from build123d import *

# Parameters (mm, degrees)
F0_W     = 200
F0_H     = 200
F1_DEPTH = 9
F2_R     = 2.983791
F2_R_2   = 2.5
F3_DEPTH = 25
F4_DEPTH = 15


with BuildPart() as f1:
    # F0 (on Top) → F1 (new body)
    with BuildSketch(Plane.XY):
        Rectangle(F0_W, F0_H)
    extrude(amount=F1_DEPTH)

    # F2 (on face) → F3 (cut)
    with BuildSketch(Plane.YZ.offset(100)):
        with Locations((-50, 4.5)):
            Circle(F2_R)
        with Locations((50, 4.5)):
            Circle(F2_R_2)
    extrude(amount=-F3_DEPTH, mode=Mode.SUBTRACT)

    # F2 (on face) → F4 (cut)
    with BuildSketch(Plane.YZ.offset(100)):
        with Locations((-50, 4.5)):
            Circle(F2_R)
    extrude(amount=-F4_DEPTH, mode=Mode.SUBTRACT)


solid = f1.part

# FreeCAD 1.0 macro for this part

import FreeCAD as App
import Part
import Sketcher

V = App.Vector
Q = App.Units.Quantity

doc = App.newDocument("Part")
body = doc.addObject("PartDesign::Body", "Body")

# Sketch on XY plane
sketch1 = body.newObject("Sketcher::SketchObject", "Sketch")
sketch1.AttachmentSupport = (doc.getObject("XY_Plane"), [""])
sketch1.MapMode = "FlatFace"
sketch1.addGeometry([
    Part.LineSegment(V(-100, 100, 0), V(-100, -100, 0)),
    Part.LineSegment(V(-100, -100, 0), V(100, -100, 0)),
    Part.LineSegment(V(100, -100, 0), V(100, 100, 0)),
    Part.LineSegment(V(100, 100, 0), V(-100, 100, 0)),
], False)
sketch1.addConstraint([
    Sketcher.Constraint("Coincident", 0, 2, 1, 1),
    Sketcher.Constraint("Coincident", 1, 2, 2, 1),
    Sketcher.Constraint("Coincident", 2, 2, 3, 1),
    Sketcher.Constraint("Coincident", 3, 2, 0, 1),
    Sketcher.Constraint("Vertical", 0),
    Sketcher.Constraint("Horizontal", 1),
    Sketcher.Constraint("Vertical", 2),
    Sketcher.Constraint("Horizontal", 3),
    Sketcher.Constraint("Symmetric", 0, 2, 2, 2, -1, 1),
    Sketcher.Constraint("Equal", 3, 0),
    Sketcher.Constraint("DistanceX", 1, 1, 1, 2, Q("200 mm")),
])
pad1 = body.newObject("PartDesign::Pad", "Pad")
pad1.Profile = sketch1
pad1.Length = 9

# Sketch on YZ plane
sketch2 = body.newObject("Sketcher::SketchObject", "Sketch001")
sketch2.AttachmentSupport = (doc.getObject("YZ_Plane"), [""])
sketch2.MapMode = "FlatFace"
sketch2.AttachmentOffset = App.Placement(V(0, 0, 100), App.Rotation())
sketch2.addGeometry([
    Part.Circle(V(-50, 4.5, 0), V(0, 0, 1), 3),
    Part.Circle(V(50, 4.5, 0), V(0, 0, 1), 2.5),
], False)
sketch2.addConstraint([
    Sketcher.Constraint("Symmetric", 0, 3, 1, 3, -2),
    Sketcher.Constraint("Diameter", 1, Q("5 mm")),
    Sketcher.Constraint("DistanceX", 0, 3, -1, 1, Q("50 mm")),
    Sketcher.Constraint("DistanceY", -1, 1, 0, 3, Q("4.5 mm")),
    Sketcher.Constraint("Diameter", 0, Q("5.967582 mm")),
])
pocket1 = body.newObject("PartDesign::Pocket", "Pocket")
pocket1.Profile = sketch2
pocket1.Length = 25

# Sketch on YZ plane
sketch3 = body.newObject("Sketcher::SketchObject", "Sketch002")
sketch3.AttachmentSupport = (doc.getObject("YZ_Plane"), [""])
sketch3.MapMode = "FlatFace"
sketch3.AttachmentOffset = App.Placement(V(0, 0, 100), App.Rotation())
sketch3.addGeometry(Part.Circle(V(-50, 4.5, 0), V(0, 0, 1), 3), False)
sketch3.addConstraint([
    Sketcher.Constraint("DistanceX", 0, 3, -1, 1, Q("50 mm")),
    Sketcher.Constraint("DistanceY", -1, 1, 0, 3, Q("4.5 mm")),
    Sketcher.Constraint("Diameter", 0, Q("5.967582 mm")),
])
pocket2 = body.newObject("PartDesign::Pocket", "Pocket001")
pocket2.Profile = sketch3
pocket2.Length = 15

doc.recompute()
